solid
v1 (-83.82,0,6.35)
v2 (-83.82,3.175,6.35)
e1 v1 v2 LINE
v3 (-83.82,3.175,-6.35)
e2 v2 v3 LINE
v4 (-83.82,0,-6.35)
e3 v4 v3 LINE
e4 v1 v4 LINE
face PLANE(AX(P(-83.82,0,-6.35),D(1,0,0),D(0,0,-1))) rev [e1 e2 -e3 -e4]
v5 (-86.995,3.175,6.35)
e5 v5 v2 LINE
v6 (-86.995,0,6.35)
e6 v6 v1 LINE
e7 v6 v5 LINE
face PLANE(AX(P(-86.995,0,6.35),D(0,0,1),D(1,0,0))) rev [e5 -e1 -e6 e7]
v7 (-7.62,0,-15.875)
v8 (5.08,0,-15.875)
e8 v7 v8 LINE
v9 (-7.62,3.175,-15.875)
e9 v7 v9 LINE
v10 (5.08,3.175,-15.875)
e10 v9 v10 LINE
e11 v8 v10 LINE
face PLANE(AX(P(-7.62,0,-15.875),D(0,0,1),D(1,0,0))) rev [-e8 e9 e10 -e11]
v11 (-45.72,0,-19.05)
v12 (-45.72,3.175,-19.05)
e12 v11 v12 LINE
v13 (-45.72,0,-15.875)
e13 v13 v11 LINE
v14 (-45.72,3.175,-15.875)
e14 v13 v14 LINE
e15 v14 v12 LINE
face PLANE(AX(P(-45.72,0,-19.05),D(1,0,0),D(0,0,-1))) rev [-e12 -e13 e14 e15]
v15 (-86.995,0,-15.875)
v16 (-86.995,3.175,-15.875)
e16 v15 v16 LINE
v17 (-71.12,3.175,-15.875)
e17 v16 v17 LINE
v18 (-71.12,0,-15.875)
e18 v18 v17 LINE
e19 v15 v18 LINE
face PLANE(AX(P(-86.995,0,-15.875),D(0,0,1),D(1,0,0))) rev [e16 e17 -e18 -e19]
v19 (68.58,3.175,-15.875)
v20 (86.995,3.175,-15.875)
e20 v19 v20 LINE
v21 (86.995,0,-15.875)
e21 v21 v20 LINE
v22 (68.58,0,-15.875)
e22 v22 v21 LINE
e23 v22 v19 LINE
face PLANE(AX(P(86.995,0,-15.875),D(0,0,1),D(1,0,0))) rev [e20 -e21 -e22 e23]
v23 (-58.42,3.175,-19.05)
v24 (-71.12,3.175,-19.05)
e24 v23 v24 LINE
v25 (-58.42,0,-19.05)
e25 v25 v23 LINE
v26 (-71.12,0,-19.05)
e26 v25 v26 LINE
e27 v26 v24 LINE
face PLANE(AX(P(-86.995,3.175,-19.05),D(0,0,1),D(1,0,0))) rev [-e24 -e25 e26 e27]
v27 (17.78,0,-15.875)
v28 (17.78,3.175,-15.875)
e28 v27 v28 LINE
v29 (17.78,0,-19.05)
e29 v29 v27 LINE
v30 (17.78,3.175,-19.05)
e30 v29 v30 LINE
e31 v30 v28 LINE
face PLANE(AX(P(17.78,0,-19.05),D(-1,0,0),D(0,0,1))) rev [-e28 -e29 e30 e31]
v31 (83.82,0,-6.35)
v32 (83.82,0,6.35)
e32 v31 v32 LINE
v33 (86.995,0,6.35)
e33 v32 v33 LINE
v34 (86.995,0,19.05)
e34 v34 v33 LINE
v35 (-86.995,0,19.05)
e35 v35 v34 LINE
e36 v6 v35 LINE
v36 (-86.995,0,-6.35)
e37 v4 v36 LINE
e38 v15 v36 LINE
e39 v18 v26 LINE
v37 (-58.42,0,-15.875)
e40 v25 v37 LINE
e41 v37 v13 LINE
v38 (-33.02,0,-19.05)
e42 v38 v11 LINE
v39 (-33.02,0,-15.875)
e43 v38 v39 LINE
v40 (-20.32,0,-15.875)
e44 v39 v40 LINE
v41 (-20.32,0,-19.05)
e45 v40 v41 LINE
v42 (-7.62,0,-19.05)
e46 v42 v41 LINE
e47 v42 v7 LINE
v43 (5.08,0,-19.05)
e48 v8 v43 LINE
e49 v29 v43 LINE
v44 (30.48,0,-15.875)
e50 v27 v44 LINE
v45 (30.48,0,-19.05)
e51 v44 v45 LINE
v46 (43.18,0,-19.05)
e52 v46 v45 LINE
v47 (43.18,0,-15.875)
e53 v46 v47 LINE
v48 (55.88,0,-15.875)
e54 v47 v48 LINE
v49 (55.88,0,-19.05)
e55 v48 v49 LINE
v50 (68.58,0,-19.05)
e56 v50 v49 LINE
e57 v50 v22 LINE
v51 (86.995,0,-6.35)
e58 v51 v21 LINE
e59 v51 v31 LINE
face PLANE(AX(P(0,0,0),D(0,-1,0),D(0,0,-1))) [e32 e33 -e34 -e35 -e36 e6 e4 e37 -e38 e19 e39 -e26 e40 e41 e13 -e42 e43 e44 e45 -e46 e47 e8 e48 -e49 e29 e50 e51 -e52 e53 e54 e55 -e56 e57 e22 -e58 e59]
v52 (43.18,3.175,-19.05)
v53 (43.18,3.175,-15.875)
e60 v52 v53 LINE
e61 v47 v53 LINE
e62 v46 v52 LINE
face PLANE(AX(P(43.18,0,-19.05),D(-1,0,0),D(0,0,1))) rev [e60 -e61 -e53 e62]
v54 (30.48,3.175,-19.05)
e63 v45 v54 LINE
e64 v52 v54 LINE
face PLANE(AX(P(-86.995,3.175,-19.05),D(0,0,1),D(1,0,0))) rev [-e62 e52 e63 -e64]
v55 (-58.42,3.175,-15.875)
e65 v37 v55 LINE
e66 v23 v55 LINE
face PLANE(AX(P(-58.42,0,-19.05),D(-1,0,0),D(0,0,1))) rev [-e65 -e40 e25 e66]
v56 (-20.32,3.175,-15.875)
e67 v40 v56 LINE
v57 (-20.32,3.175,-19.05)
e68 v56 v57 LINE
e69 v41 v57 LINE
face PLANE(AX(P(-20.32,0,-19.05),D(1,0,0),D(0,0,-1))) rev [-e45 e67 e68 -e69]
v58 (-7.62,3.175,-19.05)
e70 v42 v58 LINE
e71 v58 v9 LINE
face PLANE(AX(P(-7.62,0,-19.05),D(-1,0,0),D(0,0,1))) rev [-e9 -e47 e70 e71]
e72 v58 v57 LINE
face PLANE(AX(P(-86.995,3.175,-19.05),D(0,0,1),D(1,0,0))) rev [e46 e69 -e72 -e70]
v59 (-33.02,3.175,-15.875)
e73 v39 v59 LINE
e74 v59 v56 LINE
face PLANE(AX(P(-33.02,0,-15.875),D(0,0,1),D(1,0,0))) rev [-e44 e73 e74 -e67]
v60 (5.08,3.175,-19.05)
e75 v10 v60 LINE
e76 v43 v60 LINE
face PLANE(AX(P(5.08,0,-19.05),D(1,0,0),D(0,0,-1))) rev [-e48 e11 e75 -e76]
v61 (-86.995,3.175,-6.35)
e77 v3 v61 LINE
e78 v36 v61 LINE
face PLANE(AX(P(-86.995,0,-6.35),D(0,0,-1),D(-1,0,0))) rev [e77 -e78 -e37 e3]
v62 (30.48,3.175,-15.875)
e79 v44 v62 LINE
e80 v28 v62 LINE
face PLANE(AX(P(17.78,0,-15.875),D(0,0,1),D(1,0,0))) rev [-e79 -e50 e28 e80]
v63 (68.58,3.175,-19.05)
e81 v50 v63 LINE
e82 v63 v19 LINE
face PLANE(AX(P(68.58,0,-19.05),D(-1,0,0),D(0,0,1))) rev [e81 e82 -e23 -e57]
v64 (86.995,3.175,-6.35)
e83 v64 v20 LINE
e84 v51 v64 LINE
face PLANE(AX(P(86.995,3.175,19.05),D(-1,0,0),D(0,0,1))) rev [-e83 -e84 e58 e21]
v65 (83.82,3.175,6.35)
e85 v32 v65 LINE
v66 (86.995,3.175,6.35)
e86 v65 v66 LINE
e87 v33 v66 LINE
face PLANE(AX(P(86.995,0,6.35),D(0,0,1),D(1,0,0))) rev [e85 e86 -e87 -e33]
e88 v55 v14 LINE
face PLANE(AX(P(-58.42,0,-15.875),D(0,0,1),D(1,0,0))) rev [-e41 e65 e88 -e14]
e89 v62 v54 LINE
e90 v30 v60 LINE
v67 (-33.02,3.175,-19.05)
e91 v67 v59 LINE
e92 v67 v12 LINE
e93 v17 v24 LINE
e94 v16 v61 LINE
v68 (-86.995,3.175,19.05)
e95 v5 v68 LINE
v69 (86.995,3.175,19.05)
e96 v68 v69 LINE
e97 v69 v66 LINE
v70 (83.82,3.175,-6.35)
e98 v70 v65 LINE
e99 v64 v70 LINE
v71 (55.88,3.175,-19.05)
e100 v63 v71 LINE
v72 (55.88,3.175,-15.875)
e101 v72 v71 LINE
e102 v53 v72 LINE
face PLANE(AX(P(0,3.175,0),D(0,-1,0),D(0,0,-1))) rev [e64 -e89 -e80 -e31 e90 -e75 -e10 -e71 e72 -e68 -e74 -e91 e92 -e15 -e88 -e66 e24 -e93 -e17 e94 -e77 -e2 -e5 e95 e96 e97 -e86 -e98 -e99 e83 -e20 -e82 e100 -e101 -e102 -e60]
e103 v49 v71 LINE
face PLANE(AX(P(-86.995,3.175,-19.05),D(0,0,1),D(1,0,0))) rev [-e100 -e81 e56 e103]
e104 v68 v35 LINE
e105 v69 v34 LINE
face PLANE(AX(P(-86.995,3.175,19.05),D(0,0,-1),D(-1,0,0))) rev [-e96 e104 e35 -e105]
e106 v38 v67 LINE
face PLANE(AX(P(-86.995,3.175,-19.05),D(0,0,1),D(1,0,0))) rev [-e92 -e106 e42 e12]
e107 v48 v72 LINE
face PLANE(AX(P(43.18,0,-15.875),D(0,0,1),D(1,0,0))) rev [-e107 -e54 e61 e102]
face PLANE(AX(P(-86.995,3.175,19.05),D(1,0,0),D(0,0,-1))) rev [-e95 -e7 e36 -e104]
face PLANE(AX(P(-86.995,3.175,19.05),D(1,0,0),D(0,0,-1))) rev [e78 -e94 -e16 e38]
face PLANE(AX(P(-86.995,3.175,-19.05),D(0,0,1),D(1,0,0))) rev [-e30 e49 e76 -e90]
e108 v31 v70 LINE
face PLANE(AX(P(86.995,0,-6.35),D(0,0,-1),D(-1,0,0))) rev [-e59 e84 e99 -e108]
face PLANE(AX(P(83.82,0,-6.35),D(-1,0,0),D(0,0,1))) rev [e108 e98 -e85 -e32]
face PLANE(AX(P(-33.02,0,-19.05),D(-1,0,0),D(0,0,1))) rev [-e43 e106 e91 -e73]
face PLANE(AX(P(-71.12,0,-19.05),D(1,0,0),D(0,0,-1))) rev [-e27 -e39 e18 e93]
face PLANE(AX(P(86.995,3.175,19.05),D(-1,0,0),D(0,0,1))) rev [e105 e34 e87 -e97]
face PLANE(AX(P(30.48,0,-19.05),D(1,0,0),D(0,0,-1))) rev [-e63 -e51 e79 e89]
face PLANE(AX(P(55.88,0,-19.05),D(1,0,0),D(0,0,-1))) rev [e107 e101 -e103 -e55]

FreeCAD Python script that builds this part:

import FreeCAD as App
import Part
import Sketcher
Q = App.Units.Quantity


def add_polygon(sketch, points):
    """Adds a closed chain of lines whose ends are joined by coincident constraints."""
    first, n = sketch.GeometryCount, len(points)
    for a, b in zip(points, points[1:] + points[:1]):
        sketch.addGeometry(Part.LineSegment(App.Vector(*a, 0), App.Vector(*b, 0)), False)
    for i in range(n):
        sketch.addConstraint(Sketcher.Constraint("Coincident", first + i, 2, first + (i + 1) % n, 1))

doc = App.newDocument("Part")
params = doc.addObject("Spreadsheet::Sheet", "Params")
for row, (alias, value) in enumerate([
    ("sketch1_height", "1.5 in"),
    ("sketch1_width", "6.85 in"),
    ("pad1_length", "0.125 in"),
    ("sketch2_width", "0.5 in"),
    ("sketch2_width2", "0.625 in"),
    ("pocket1_length", "0.125 in"),
], start=1):
    params.set(f"A{row}", alias)
    params.set(f"B{row}", "=" + value)
    params.setAlias(f"B{row}", alias)

body = doc.addObject("PartDesign::Body", "Body")

# Sketch on XZ plane
sketch1 = body.newObject("Sketcher::SketchObject", "Sketch")
sketch1.AttachmentSupport = (doc.getObject("XZ_Plane"), [""])
sketch1.MapMode = "FlatFace"
add_polygon(sketch1, [(-87, -19), (-87, 19), (87, 19), (87, -19)])  # lines 0-3
sketch1.addConstraint([
    Sketcher.Constraint("Vertical", 0),
    Sketcher.Constraint("Horizontal", 1),
    Sketcher.Constraint("Vertical", 2),
    Sketcher.Constraint("Horizontal", 3),
    Sketcher.Constraint("Symmetric", 0, 2, 2, 2, -1, 1),
    Sketcher.Constraint("DistanceY", 0, 1, 0, 2, Q("1.5 in")),
    Sketcher.Constraint("DistanceX", 1, 1, 1, 2, Q("6.85 in")),
])
sketch1.setExpression("Constraints[9]", "Params.sketch1_height")
sketch1.setExpression("Constraints[10]", "Params.sketch1_width")
pad1 = body.newObject("PartDesign::Pad", "Pad")
pad1.Profile = sketch1
pad1.setExpression("Length", "Params.pad1_length")
pad1.Reversed = True

# Sketch on XZ plane
sketch2 = body.newObject("Sketcher::SketchObject", "Sketch001")
sketch2.AttachmentSupport = (doc.getObject("XZ_Plane"), [""])
sketch2.MapMode = "FlatFace"
sketch2.AttachmentOffset = App.Placement(App.Vector(0, 0, -0.125 * 25.4), App.Rotation())
add_polygon(sketch2, [(-87, -19.1), (-87, -15.9), (-71.1, -15.9), (-71.1, -19.1)])  # lines 0-3
add_polygon(sketch2, [(-58.4, -19.1), (-58.4, -15.9), (-45.7, -15.9), (-45.7, -19.1)])  # lines 4-7
add_polygon(sketch2, [(-33, -19.1), (-33, -15.9), (-20.3, -15.9), (-20.3, -19.1)])  # lines 8-11
add_polygon(sketch2, [(-7.6, -19.1), (-7.6, -15.9), (5.1, -15.9), (5.1, -19.1)])  # lines 12-15
add_polygon(sketch2, [(17.8, -19.1), (17.8, -15.9), (30.5, -15.9), (30.5, -19.1)])  # lines 16-19
add_polygon(sketch2, [(43.2, -19.1), (43.2, -15.9), (55.9, -15.9), (55.9, -19.1)])  # lines 20-23
add_polygon(sketch2, [(68.6, -19.1), (68.6, -15.9), (87, -15.9), (87, -19.1)])  # lines 24-27
add_polygon(sketch2, [(-87, -6.3), (-87, 6.3), (-83.8, 6.3), (-83.8, -6.3)])  # lines 28-31
add_polygon(sketch2, [(83.8, -6.3), (83.8, 6.3), (87, 6.3), (87, -6.3)])  # lines 32-35
sketch2.addConstraint([
    Sketcher.Constraint("Vertical", 0),
    Sketcher.Constraint("Horizontal", 1),
    Sketcher.Constraint("Vertical", 2),
    Sketcher.Constraint("Horizontal", 3),
    Sketcher.Constraint("Vertical", 4),
    Sketcher.Constraint("Horizontal", 5),
    Sketcher.Constraint("Vertical", 6),
    Sketcher.Constraint("Horizontal", 7),
    Sketcher.Constraint("Vertical", 8),
    Sketcher.Constraint("Horizontal", 9),
    Sketcher.Constraint("Vertical", 10),
    Sketcher.Constraint("Horizontal", 11),
    Sketcher.Constraint("Vertical", 12),
    Sketcher.Constraint("Horizontal", 13),
    Sketcher.Constraint("Vertical", 14),
    Sketcher.Constraint("Horizontal", 15),
    Sketcher.Constraint("Vertical", 16),
    Sketcher.Constraint("Horizontal", 17),
    Sketcher.Constraint("Vertical", 18),
    Sketcher.Constraint("Horizontal", 19),
    Sketcher.Constraint("Vertical", 20),
    Sketcher.Constraint("Horizontal", 21),
    Sketcher.Constraint("Vertical", 22),
    Sketcher.Constraint("Horizontal", 23),
    Sketcher.Constraint("Vertical", 24),
    Sketcher.Constraint("Horizontal", 25),
    Sketcher.Constraint("Vertical", 26),
    Sketcher.Constraint("Horizontal", 27),
    Sketcher.Constraint("Vertical", 28),
    Sketcher.Constraint("Horizontal", 29),
    Sketcher.Constraint("Vertical", 30),
    Sketcher.Constraint("Horizontal", 31),
    Sketcher.Constraint("Vertical", 32),
    Sketcher.Constraint("Horizontal", 33),
    Sketcher.Constraint("Vertical", 34),
    Sketcher.Constraint("Horizontal", 35),
    Sketcher.Constraint("Symmetric", 30, 2, 32, 2, -1, 1),
    Sketcher.Constraint("Symmetric", 28, 2, 34, 2, -1, 1),
    Sketcher.Constraint("Symmetric", 0, 2, 25, 2, -2),
    Sketcher.Constraint("Horizontal", 1, 2, 4, 2),
    Sketcher.Constraint("Horizontal", 3, 2, 6, 2),
    Sketcher.Constraint("Horizontal", 5, 2, 8, 2),
    Sketcher.Constraint("Horizontal", 7, 2, 10, 2),
    Sketcher.Constraint("Horizontal", 9, 2, 12, 2),
    Sketcher.Constraint("Horizontal", 11, 2, 14, 2),
    Sketcher.Constraint("Horizontal", 13, 2, 16, 2),
    Sketcher.Constraint("Horizontal", 15, 2, 18, 2),
    Sketcher.Constraint("Horizontal", 17, 2, 20, 2),
    Sketcher.Constraint("Horizontal", 19, 2, 22, 2),
    Sketcher.Constraint("Horizontal", 23, 2, 26, 2),
    Sketcher.Constraint("Horizontal", 29, 2, 32, 2),
    Sketcher.Constraint("Vertical", 3, 2, 28, 2),
    Sketcher.Constraint("Equal", 7, 9),
    Sketcher.Constraint("Equal", 11, 13),
    Sketcher.Constraint("Equal", 15, 17),
    Sketcher.Constraint("Equal", 19, 21),
    Sketcher.Constraint("Equal", 35, 0),
    Sketcher.Constraint("Equal", 23, 28),
    Sketcher.Constraint("DistanceX", 5, 1, 5, 2, Q("0.5 in")),
    Sketcher.Constraint("DistanceX", 1, 2, 5, 2, Q("1 in")),
    Sketcher.Constraint("DistanceX", 4, 2, 8, 2, Q("1 in")),
    Sketcher.Constraint("DistanceX", 8, 2, 12, 2, Q("1 in")),
    Sketcher.Constraint("DistanceX", 12, 2, 16, 2, Q("1 in")),
    Sketcher.Constraint("DistanceX", 16, 2, 20, 2, Q("1 in")),
    Sketcher.Constraint("DistanceX", 20, 2, 24, 2, Q("1 in")),
    Sketcher.Constraint("DistanceY", 3, 2, 28, 2, Q("1 in")),
    Sketcher.Constraint("DistanceX", 1, 2, -1, 1, Q("2.8 in")),
    Sketcher.Constraint("DistanceX", 29, 2, -1, 1, Q("3.3 in")),
    Sketcher.Constraint("DistanceX", 1, 1, 1, 2, Q("0.625 in")),
])
sketch2.setExpression("Constraints[94]", "Params.sketch2_width")
sketch2.setExpression("Constraints[104]", "Params.sketch2_width2")
pocket1 = body.newObject("PartDesign::Pocket", "Pocket")
pocket1.Profile = sketch2
pocket1.setExpression("Length", "Params.pocket1_length")
pocket1.Reversed = True

doc.recompute()
